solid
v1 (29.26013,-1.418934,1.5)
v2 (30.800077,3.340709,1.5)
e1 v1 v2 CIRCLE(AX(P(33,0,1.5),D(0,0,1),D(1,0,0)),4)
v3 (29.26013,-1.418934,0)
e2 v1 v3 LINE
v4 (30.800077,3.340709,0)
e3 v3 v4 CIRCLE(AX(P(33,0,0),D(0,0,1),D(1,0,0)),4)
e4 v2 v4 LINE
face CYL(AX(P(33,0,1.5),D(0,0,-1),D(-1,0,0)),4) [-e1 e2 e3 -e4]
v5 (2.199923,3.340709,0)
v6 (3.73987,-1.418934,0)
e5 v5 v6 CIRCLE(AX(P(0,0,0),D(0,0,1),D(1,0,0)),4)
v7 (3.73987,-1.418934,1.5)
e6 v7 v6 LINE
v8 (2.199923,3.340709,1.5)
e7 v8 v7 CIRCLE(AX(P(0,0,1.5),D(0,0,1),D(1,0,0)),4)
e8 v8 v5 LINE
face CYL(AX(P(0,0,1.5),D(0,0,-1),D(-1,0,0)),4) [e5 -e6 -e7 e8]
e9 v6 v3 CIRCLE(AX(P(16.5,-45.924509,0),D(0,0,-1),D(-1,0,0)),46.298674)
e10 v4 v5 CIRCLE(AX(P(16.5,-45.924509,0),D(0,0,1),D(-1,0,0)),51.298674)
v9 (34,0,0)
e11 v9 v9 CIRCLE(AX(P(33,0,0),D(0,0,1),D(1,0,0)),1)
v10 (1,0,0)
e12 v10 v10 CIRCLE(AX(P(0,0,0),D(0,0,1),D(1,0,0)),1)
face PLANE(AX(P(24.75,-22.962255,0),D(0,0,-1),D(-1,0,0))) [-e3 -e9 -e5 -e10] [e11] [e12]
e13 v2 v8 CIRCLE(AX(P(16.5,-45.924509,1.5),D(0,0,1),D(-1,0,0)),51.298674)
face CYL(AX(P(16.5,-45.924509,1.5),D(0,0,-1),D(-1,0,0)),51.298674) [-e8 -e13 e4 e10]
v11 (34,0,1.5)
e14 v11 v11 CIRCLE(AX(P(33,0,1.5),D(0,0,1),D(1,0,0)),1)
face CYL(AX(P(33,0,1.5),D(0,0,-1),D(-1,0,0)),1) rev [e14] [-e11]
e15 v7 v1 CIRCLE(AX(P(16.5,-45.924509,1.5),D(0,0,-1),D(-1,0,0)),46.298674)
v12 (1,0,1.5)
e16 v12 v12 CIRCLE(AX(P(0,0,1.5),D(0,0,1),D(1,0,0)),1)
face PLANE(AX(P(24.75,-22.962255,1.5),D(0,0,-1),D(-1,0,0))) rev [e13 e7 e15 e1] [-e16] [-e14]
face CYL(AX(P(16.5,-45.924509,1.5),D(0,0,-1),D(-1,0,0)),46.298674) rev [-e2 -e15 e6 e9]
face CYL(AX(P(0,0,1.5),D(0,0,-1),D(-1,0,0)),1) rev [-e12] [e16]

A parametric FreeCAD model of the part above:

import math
import FreeCAD as App
import Part
import Sketcher
Q = App.Units.Quantity

doc = App.newDocument("Part")
body = doc.addObject("PartDesign::Body", "Body")

sketch1 = body.newObject("Sketcher::SketchObject", "Sketch")
sketch1.AttachmentSupport = (doc.getObject("XY_Plane"), [""])
sketch1.MapMode = "FlatFace"
sketch1.addGeometry([
    Part.ArcOfCircle(Part.Circle(App.Vector(0, 0, 0), App.Vector(0, 0, 1), 4), math.radians(57), math.radians(339)),
    Part.ArcOfCircle(Part.Circle(App.Vector(16.5, -45.9, 0), App.Vector(0, 0, 1), 46.3), math.radians(74), math.radians(106)),
    Part.ArcOfCircle(Part.Circle(App.Vector(33, 0, 0), App.Vector(0, 0, 1), 4), math.radians(-159), math.radians(123)),
    Part.ArcOfCircle(Part.Circle(App.Vector(16.5, -45.9, 0), App.Vector(0, 0, 1), 51.3), math.radians(74), math.radians(106)),
    Part.Circle(App.Vector(0, 0, 0), App.Vector(0, 0, 1), 1),
    Part.Circle(App.Vector(33, 0, 0), App.Vector(0, 0, 1), 1),
], False)
sketch1.addConstraint([
    Sketcher.Constraint("Coincident", 0, 2, 1, 2),
    Sketcher.Constraint("Coincident", 1, 1, 2, 1),
    Sketcher.Constraint("Coincident", 2, 2, 3, 1),
    Sketcher.Constraint("Coincident", 3, 2, 0, 1),
    Sketcher.Constraint("Coincident", 0, 3, -1, 1),
    Sketcher.Constraint("Coincident", 4, 3, -1, 1),
    Sketcher.Constraint("Coincident", 3, 3, 1, 3),
    Sketcher.Constraint("Coincident", 5, 3, 2, 3),
    Sketcher.Constraint("Equal", 0, 2),
    Sketcher.Constraint("Equal", 4, 5),
    Sketcher.Constraint("PointOnObject", 2, 3, -1),
    Sketcher.Constraint("Horizontal", 0, 2, 1, 1),
    Sketcher.Constraint("Diameter", 4, Q("2 mm")),
    Sketcher.Constraint("Radius", 0, Q("4 mm")),
    Sketcher.Constraint("DistanceX", -1, 1, 2, 3, Q("33 mm")),
    Sketcher.Constraint("Radius", 1, Q("46.298674 mm")),
    Sketcher.Constraint("Radius", 3, Q("51.298674 mm")),
    Sketcher.Constraint("DistanceY", 1, 3, -1, 1, Q("45.924509 mm")),
])
pad1 = body.newObject("PartDesign::Pad", "Pad")
pad1.Profile = sketch1
pad1.Length = 1.5

doc.recompute()
